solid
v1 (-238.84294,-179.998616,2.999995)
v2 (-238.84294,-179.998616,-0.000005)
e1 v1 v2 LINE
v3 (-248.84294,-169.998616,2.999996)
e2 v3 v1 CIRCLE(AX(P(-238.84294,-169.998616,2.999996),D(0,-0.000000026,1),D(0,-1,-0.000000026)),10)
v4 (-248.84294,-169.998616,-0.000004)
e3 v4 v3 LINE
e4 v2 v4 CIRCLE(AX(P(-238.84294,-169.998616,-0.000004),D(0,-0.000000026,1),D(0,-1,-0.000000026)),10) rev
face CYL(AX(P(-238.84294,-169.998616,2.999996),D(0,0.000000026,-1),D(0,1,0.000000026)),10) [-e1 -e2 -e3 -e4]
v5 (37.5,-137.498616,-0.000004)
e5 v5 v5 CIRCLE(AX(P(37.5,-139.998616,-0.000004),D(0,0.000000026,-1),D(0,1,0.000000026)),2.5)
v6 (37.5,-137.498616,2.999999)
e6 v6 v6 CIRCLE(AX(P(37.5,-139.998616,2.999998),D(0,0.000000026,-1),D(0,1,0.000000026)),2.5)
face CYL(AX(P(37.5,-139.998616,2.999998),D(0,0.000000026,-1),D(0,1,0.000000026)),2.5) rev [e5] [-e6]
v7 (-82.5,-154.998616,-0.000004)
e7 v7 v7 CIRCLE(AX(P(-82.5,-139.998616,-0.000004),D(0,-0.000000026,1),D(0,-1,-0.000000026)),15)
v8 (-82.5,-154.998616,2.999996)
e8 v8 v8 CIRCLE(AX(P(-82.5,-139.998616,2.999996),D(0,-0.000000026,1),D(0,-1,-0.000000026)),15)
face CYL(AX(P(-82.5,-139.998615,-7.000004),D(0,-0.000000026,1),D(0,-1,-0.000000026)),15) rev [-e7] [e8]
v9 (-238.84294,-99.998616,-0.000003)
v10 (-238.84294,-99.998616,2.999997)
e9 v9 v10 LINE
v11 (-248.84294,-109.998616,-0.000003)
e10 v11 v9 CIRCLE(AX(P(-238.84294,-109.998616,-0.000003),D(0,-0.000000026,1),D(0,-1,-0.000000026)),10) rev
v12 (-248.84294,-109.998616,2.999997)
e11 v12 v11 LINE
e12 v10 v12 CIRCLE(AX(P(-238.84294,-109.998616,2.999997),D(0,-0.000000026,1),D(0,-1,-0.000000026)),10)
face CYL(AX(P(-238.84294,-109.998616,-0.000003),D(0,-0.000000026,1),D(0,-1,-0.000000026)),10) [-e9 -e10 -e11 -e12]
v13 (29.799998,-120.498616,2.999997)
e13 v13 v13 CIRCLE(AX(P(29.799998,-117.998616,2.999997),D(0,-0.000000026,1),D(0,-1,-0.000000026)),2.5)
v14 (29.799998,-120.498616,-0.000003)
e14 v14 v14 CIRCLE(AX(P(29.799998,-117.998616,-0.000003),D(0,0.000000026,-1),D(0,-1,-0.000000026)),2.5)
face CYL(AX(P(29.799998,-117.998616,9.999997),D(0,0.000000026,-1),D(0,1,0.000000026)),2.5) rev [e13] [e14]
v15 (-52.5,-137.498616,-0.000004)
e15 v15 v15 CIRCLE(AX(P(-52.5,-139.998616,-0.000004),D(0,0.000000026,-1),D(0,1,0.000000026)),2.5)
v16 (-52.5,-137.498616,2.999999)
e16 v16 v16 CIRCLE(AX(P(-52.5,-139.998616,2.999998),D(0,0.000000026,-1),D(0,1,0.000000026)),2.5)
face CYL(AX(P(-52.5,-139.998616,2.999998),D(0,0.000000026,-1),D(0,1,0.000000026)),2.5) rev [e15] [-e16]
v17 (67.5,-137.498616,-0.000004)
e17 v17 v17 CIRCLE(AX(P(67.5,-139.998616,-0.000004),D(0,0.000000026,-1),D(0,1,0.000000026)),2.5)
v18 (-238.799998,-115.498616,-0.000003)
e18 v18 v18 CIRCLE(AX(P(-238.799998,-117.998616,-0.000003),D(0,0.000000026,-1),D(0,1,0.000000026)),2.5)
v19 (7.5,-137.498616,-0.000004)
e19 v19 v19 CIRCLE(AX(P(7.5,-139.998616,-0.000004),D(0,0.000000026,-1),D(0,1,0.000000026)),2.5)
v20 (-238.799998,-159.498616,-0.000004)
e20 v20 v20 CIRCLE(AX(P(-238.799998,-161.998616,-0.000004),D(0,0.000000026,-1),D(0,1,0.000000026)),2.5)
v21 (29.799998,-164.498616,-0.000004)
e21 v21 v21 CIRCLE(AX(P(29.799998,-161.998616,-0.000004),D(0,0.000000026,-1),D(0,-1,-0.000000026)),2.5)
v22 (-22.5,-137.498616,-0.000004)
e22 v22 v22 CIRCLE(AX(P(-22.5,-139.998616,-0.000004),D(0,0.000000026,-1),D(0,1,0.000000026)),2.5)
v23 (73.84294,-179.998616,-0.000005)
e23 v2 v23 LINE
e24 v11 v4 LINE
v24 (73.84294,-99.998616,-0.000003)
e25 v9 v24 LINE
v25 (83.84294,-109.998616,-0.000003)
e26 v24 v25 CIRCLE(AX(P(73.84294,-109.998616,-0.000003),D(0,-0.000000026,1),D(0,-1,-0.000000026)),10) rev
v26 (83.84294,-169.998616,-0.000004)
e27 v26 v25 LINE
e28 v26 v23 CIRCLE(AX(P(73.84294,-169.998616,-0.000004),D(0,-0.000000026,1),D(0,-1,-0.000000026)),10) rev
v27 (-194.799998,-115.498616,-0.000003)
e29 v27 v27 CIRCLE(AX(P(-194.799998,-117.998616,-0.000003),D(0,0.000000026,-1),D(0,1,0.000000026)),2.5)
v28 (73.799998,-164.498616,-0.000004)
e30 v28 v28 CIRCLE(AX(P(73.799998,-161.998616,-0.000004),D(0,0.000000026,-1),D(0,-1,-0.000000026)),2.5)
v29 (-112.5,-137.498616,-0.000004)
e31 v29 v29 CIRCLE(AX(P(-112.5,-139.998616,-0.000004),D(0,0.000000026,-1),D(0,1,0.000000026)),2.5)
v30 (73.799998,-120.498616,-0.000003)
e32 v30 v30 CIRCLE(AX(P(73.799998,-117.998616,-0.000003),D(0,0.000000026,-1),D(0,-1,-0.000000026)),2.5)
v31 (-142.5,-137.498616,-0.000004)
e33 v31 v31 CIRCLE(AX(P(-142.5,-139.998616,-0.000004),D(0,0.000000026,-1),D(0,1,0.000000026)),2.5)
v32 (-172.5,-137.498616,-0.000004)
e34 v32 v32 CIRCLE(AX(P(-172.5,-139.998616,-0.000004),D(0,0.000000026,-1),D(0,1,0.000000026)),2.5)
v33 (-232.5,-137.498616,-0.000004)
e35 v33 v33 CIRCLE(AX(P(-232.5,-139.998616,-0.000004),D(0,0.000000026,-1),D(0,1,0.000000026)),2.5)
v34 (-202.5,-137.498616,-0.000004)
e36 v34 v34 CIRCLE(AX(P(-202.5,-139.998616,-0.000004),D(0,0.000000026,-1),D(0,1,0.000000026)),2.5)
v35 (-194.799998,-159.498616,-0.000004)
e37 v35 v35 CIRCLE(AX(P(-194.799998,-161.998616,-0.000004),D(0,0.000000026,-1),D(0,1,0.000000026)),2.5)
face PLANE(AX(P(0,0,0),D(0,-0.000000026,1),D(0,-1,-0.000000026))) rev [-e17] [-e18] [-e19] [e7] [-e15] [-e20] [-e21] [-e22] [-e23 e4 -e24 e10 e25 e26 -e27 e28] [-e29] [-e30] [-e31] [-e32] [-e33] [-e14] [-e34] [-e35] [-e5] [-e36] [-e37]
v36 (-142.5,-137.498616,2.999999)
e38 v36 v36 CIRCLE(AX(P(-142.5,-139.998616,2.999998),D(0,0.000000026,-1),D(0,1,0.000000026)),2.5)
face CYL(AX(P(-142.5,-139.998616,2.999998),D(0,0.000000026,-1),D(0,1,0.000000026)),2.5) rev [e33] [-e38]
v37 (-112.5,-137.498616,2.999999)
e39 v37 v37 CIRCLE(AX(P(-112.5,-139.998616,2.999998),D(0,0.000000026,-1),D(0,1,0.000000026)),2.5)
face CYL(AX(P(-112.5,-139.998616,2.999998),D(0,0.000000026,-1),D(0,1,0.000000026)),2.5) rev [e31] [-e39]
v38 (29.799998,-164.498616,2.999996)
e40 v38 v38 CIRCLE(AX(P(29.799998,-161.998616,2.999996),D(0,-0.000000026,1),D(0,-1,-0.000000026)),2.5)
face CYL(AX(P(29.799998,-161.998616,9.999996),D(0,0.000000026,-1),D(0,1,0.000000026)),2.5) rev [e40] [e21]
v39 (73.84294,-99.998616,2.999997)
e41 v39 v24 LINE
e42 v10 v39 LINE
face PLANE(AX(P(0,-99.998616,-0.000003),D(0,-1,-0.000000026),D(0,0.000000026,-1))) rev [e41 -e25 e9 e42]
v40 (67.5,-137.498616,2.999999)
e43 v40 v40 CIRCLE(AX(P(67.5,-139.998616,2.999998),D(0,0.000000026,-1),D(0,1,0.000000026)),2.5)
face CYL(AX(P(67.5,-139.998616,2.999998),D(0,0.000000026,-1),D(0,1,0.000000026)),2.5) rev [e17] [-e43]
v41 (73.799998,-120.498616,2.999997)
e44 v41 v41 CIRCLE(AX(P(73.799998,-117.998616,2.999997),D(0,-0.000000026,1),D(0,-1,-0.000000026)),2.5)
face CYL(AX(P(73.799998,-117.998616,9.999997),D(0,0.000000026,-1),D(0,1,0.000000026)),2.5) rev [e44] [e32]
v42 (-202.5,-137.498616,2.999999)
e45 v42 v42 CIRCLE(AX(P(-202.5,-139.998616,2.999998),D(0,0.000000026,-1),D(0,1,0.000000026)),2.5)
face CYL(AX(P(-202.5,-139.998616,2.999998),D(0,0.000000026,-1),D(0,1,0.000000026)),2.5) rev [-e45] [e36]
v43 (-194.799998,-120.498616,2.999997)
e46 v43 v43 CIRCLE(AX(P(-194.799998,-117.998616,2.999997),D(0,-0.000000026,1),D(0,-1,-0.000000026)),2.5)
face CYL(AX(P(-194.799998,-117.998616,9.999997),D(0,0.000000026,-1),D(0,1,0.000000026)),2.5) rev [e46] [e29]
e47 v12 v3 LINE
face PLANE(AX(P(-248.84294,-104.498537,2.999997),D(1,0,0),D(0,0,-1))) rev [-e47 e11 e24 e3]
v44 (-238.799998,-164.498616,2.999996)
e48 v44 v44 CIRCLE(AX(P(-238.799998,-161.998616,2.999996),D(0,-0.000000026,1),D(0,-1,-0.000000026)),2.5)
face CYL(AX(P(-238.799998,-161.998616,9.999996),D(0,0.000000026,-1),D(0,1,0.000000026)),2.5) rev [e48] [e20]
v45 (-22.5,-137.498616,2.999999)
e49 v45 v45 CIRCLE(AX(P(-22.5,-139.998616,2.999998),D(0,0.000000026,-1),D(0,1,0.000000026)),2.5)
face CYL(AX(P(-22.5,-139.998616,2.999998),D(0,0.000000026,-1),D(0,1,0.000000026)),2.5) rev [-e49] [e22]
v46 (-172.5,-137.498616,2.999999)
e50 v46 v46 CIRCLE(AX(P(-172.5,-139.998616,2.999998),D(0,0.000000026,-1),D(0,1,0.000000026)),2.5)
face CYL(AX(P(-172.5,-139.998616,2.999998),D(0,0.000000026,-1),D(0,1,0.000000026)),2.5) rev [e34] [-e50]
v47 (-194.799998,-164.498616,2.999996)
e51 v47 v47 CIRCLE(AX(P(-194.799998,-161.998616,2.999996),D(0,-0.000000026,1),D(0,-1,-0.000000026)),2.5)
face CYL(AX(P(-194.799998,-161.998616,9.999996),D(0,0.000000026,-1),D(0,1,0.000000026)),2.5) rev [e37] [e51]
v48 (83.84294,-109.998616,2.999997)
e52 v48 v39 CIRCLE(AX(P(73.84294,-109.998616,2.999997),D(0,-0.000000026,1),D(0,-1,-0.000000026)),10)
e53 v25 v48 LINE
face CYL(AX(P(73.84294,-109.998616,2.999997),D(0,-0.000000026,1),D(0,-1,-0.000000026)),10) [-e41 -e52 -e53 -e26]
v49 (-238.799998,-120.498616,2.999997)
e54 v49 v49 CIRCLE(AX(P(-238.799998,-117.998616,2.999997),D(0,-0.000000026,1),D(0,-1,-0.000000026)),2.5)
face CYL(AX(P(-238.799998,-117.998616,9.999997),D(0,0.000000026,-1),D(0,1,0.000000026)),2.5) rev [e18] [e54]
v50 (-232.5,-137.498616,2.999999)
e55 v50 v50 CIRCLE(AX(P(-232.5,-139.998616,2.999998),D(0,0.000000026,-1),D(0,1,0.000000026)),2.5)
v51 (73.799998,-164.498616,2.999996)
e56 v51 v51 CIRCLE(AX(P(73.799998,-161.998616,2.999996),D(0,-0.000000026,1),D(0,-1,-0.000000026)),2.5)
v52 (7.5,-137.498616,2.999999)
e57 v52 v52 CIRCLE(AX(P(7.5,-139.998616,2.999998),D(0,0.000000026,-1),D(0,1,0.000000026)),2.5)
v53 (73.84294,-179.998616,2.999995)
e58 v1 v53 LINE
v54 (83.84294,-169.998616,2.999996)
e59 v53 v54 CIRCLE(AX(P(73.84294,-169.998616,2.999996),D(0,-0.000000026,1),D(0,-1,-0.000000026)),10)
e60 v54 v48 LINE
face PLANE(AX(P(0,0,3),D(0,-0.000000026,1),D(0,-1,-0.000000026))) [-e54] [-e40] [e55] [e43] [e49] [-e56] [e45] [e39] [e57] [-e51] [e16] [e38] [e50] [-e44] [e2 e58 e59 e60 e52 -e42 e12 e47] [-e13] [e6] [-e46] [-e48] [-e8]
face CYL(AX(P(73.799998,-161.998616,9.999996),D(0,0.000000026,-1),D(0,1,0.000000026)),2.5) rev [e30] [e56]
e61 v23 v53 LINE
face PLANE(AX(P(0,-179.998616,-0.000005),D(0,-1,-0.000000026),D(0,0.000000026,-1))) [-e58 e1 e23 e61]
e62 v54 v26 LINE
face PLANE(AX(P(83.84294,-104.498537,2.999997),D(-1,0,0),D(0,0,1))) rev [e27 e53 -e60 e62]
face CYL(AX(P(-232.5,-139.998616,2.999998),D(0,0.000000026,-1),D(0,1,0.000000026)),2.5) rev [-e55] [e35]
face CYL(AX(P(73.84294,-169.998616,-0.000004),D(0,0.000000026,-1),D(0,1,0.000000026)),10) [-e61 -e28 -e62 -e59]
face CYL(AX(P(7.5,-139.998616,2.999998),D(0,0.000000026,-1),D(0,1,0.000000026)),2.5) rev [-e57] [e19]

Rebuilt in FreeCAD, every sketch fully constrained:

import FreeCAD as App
import Part
import Sketcher
from FreeCAD import Vector


def edges_at(feature, points):
    """Names of the edges that pass closest to the given points."""
    edges = feature.Shape.Edges
    near = lambda p: min(range(len(edges)), key=lambda i: edges[i].distToShape(Part.Vertex(*p))[0])
    return sorted({f"Edge{near(p) + 1}" for p in points})


def add_polygon(sketch, points):
    """Adds a closed chain of lines whose ends are joined by coincident constraints."""
    first, n = sketch.GeometryCount, len(points)
    for a, b in zip(points, points[1:] + points[:1]):
        sketch.addGeometry(Part.LineSegment(App.Vector(*a, 0), App.Vector(*b, 0)), False)
    for i in range(n):
        sketch.addConstraint(Sketcher.Constraint("Coincident", first + i, 2, first + (i + 1) % n, 1))

doc = App.newDocument("Part")
params = doc.addObject("Spreadsheet::Sheet", "Params")
for row, (alias, value) in enumerate([
    ("pad1_length", "3 mm"),
    ("sketch2_diameter", "30 mm"),
    ("pocket1_length", "10 mm"),
    ("sketch3_diameter", "5 mm"),
    ("pocket2_length", "10 mm"),
    ("pad2_length", "3 mm"),
    ("fillet_radius", "10 mm"),
    ("sketch5_diameter", "5 mm"),
], start=1):
    params.set(f"A{row}", alias)
    params.set(f"B{row}", "=" + value)
    params.setAlias(f"B{row}", alias)

body = doc.addObject("PartDesign::Body", "Body")

# Sketch on XY plane
sketch1 = doc.addObject("Sketcher::SketchObject", "Sketch")
body.addObject(sketch1)
sketch1.AttachmentSupport = (doc.XY_Plane, [""])
sketch1.MapMode = "FlatFace"
add_polygon(sketch1, [(-248.84294, -104.498537), (-248.84294, -175.498694), (83.84294, -175.498694), (83.84294, -104.498537)])  # lines 0-3
sketch1.addConstraint([
    Sketcher.Constraint("Vertical", 0),
    Sketcher.Constraint("Horizontal", 1),
    Sketcher.Constraint("Vertical", 2),
    Sketcher.Constraint("Horizontal", 3),
    Sketcher.Constraint("DistanceX", 1, 1, 1, 2, 332.68588),
    Sketcher.Constraint("DistanceY", 0, 2, 0, 1, 71.000157),
    Sketcher.Constraint("DistanceX", 0, 2, -1, 1, 248.84294),
    Sketcher.Constraint("DistanceY", 0, 2, -1, 1, 175.498694),
])
pad1 = doc.addObject("PartDesign::Pad", "Pad")
body.addObject(pad1)
pad1.Profile = sketch1
pad1.setExpression("Length", "Params.pad1_length")

# Sketch on XY plane
sketch2 = doc.addObject("Sketcher::SketchObject", "Sketch001")
body.addObject(sketch2)
sketch2.AttachmentSupport = (doc.XY_Plane, [""])
sketch2.MapMode = "FlatFace"
sketch2.AttachmentOffset = App.Placement(Vector(0, 0, 3), App.Rotation())
sketch2.addGeometry(Part.Circle(Vector(-82.5, -139.998616, 0), Vector(0, 0, 1), 15), False)
sketch2.addConstraint([
    Sketcher.Constraint("Diameter", 0, 30.0),
    Sketcher.Constraint("DistanceX", 0, 3, -1, 1, 82.5),
    Sketcher.Constraint("DistanceY", 0, 3, -1, 1, 139.998616),
])
sketch2.setExpression("Constraints[0]", "Params.sketch2_diameter")
pocket1 = doc.addObject("PartDesign::Pocket", "Pocket")
body.addObject(pocket1)
pocket1.Profile = sketch2
pocket1.setExpression("Length", "Params.pocket1_length")

# Sketch on XY plane
sketch3 = doc.addObject("Sketcher::SketchObject", "Sketch002")
body.addObject(sketch3)
sketch3.AttachmentSupport = (doc.XY_Plane, [""])
sketch3.MapMode = "FlatFace"
sketch3.addGeometry([
    Part.Circle(Vector(-238.799998, -117.998616, 0), Vector(0, 0, 1), 2.5),  # 0
    Part.Circle(Vector(-194.799998, -117.998616, 0), Vector(0, 0, 1), 2.5),  # 1
    Part.Circle(Vector(-194.799998, -161.998616, 0), Vector(0, 0, 1), 2.5),  # 2
    Part.Circle(Vector(-238.799998, -161.998616, 0), Vector(0, 0, 1), 2.5),  # 3
    Part.Circle(Vector(73.799998, -161.998616, 0), Vector(0, 0, 1), 2.5),  # 4
    Part.Circle(Vector(29.799998, -161.998616, 0), Vector(0, 0, 1), 2.5),  # 5
    Part.Circle(Vector(29.799998, -117.998616, 0), Vector(0, 0, 1), 2.5),  # 6
    Part.Circle(Vector(73.799998, -117.998616, 0), Vector(0, 0, 1), 2.5),  # 7
], False)
sketch3.addConstraint([
    Sketcher.Constraint("Equal", 0, 1),
    Sketcher.Constraint("Equal", 1, 2),
    Sketcher.Constraint("Equal", 2, 3),
    Sketcher.Constraint("Equal", 3, 4),
    Sketcher.Constraint("Equal", 4, 5),
    Sketcher.Constraint("Equal", 5, 6),
    Sketcher.Constraint("Equal", 6, 7),
    Sketcher.Constraint("Horizontal", 0, 3, 1, 3),
    Sketcher.Constraint("Horizontal", 2, 3, 3, 3),
    Sketcher.Constraint("Horizontal", 3, 3, 4, 3),
    Sketcher.Constraint("Horizontal", 4, 3, 5, 3),
    Sketcher.Constraint("Horizontal", 1, 3, 6, 3),
    Sketcher.Constraint("Horizontal", 6, 3, 7, 3),
    Sketcher.Constraint("Vertical", 1, 3, 2, 3),
    Sketcher.Constraint("Vertical", 0, 3, 3, 3),
    Sketcher.Constraint("Vertical", 5, 3, 6, 3),
    Sketcher.Constraint("Vertical", 4, 3, 7, 3),
    Sketcher.Constraint("Diameter", 0, 5.0),
    Sketcher.Constraint("DistanceX", 0, 3, 1, 3, 44.0),
    Sketcher.Constraint("DistanceY", 2, 3, 1, 3, 44.0),
    Sketcher.Constraint("DistanceX", 5, 3, 4, 3, 44.0),
    Sketcher.Constraint("DistanceX", 0, 3, -1, 1, 238.799998),
    Sketcher.Constraint("DistanceY", 0, 3, -1, 1, 117.998616),
    Sketcher.Constraint("DistanceX", -1, 1, 4, 3, 73.799998),
])
sketch3.setExpression("Constraints[17]", "Params.sketch3_diameter")
pocket2 = doc.addObject("PartDesign::Pocket", "Pocket001")
body.addObject(pocket2)
pocket2.Profile = sketch3
pocket2.setExpression("Length", "Params.pocket2_length")
pocket2.Reversed = True

# Sketch on XY plane
sketch4 = doc.addObject("Sketcher::SketchObject", "Sketch003")
body.addObject(sketch4)
sketch4.AttachmentSupport = (doc.XY_Plane, [""])
sketch4.MapMode = "FlatFace"
sketch4.AttachmentOffset = App.Placement(Vector(0, 0, 3), App.Rotation())
add_polygon(sketch4, [(-248.84294, -99.998616), (-248.84294, -104.498537), (83.84294, -104.498537), (83.84294, -99.998616)])  # lines 0-3
add_polygon(sketch4, [(-248.84294, -175.498694), (-248.84294, -179.998616), (83.84294, -179.998616), (83.84294, -175.498694)])  # lines 4-7
sketch4.addConstraint([
    Sketcher.Constraint("Vertical", 0),
    Sketcher.Constraint("Horizontal", 1),
    Sketcher.Constraint("Vertical", 2),
    Sketcher.Constraint("Horizontal", 3),
    Sketcher.Constraint("Vertical", 4),
    Sketcher.Constraint("Horizontal", 5),
    Sketcher.Constraint("Vertical", 6),
    Sketcher.Constraint("Horizontal", 7),
    Sketcher.Constraint("Vertical", 3, 2, 4, 2),
    Sketcher.Constraint("Vertical", 2, 2, 5, 2),
    Sketcher.Constraint("Equal", 2, 4),
    Sketcher.Constraint("DistanceY", 4, 2, 3, 2, 80.0),
    Sketcher.Constraint("DistanceX", 1, 1, 1, 2, 332.68588),
    Sketcher.Constraint("DistanceY", 0, 2, 0, 1, 4.499922),
    Sketcher.Constraint("DistanceX", 0, 2, -1, 1, 248.84294),
    Sketcher.Constraint("DistanceY", 0, 2, -1, 1, 104.498537),
])
pad2 = doc.addObject("PartDesign::Pad", "Pad001")
body.addObject(pad2)
pad2.Profile = sketch4
pad2.setExpression("Length", "Params.pad2_length")
pad2.Reversed = True
doc.recompute()

fillet = doc.addObject("PartDesign::Fillet", "Fillet")
body.addObject(fillet)
fillet.Base = (pad2, edges_at(pad2, [
    (-248.843, -99.999, 1.5),
    (83.843, -99.999, 1.5),
    (83.843, -179.999, 1.5),
    (-248.843, -179.999, 1.5),
]))
fillet.setExpression("Radius", "Params.fillet_radius")

# Sketch on XY plane
sketch5 = doc.addObject("Sketcher::SketchObject", "Sketch004")
body.addObject(sketch5)
sketch5.AttachmentSupport = (doc.XY_Plane, [""])
sketch5.MapMode = "FlatFace"
sketch5.addGeometry([
    Part.Circle(Vector(-202.5, -139.998616, 0), Vector(0, 0, 1), 2.5),  # 0
    Part.Circle(Vector(-172.5, -139.998616, 0), Vector(0, 0, 1), 2.5),  # 1
    Part.Circle(Vector(-142.5, -139.998616, 0), Vector(0, 0, 1), 2.5),  # 2
    Part.Circle(Vector(-112.5, -139.998616, 0), Vector(0, 0, 1), 2.5),  # 3
    Part.Circle(Vector(-52.5, -139.998616, 0), Vector(0, 0, 1), 2.5),  # 4
    Part.Circle(Vector(-22.5, -139.998616, 0), Vector(0, 0, 1), 2.5),  # 5
    Part.Circle(Vector(7.5, -139.998616, 0), Vector(0, 0, 1), 2.5),  # 6
    Part.Circle(Vector(37.5, -139.998616, 0), Vector(0, 0, 1), 2.5),  # 7
    Part.Circle(Vector(67.5, -139.998616, 0), Vector(0, 0, 1), 2.5),  # 8
    Part.Circle(Vector(-232.5, -139.998616, 0), Vector(0, 0, 1), 2.5),  # 9
], False)
sketch5.addConstraint([
    Sketcher.Constraint("Equal", 0, 1),
    Sketcher.Constraint("Equal", 1, 2),
    Sketcher.Constraint("Equal", 2, 3),
    Sketcher.Constraint("Equal", 3, 4),
    Sketcher.Constraint("Equal", 4, 5),
    Sketcher.Constraint("Equal", 5, 6),
    Sketcher.Constraint("Equal", 6, 7),
    Sketcher.Constraint("Equal", 7, 8),
    Sketcher.Constraint("Equal", 8, 9),
    Sketcher.Constraint("Horizontal", 0, 3, 1, 3),
    Sketcher.Constraint("Horizontal", 1, 3, 2, 3),
    Sketcher.Constraint("Horizontal", 2, 3, 3, 3),
    Sketcher.Constraint("Horizontal", 3, 3, 4, 3),
    Sketcher.Constraint("Horizontal", 4, 3, 5, 3),
    Sketcher.Constraint("Horizontal", 5, 3, 6, 3),
    Sketcher.Constraint("Horizontal", 6, 3, 7, 3),
    Sketcher.Constraint("Horizontal", 7, 3, 8, 3),
    Sketcher.Constraint("Horizontal", 8, 3, 9, 3),
    Sketcher.Constraint("Diameter", 0, 5.0),
    Sketcher.Constraint("DistanceX", 0, 3, 1, 3, 30.0),
    Sketcher.Constraint("DistanceX", 1, 3, 2, 3, 30.0),
    Sketcher.Constraint("DistanceX", 2, 3, 3, 3, 30.0),
    Sketcher.Constraint("DistanceX", 3, 3, 4, 3, 60.0),
    Sketcher.Constraint("DistanceX", 4, 3, 5, 3, 30.0),
    Sketcher.Constraint("DistanceX", 5, 3, 6, 3, 30.0),
    Sketcher.Constraint("DistanceX", 6, 3, 7, 3, 30.0),
    Sketcher.Constraint("DistanceX", 7, 3, 8, 3, 30.0),
    Sketcher.Constraint("DistanceX", 9, 3, 0, 3, 30.0),
    Sketcher.Constraint("DistanceX", 0, 3, -1, 1, 202.5),
    Sketcher.Constraint("DistanceY", 0, 3, -1, 1, 139.998616),
])
sketch5.setExpression("Constraints[18]", "Params.sketch5_diameter")
pocket3 = doc.addObject("PartDesign::Pocket", "Pocket002")
body.addObject(pocket3)
pocket3.Profile = sketch5
pocket3.Type = "ThroughAll"
pocket3.Reversed = True

doc.recompute()
